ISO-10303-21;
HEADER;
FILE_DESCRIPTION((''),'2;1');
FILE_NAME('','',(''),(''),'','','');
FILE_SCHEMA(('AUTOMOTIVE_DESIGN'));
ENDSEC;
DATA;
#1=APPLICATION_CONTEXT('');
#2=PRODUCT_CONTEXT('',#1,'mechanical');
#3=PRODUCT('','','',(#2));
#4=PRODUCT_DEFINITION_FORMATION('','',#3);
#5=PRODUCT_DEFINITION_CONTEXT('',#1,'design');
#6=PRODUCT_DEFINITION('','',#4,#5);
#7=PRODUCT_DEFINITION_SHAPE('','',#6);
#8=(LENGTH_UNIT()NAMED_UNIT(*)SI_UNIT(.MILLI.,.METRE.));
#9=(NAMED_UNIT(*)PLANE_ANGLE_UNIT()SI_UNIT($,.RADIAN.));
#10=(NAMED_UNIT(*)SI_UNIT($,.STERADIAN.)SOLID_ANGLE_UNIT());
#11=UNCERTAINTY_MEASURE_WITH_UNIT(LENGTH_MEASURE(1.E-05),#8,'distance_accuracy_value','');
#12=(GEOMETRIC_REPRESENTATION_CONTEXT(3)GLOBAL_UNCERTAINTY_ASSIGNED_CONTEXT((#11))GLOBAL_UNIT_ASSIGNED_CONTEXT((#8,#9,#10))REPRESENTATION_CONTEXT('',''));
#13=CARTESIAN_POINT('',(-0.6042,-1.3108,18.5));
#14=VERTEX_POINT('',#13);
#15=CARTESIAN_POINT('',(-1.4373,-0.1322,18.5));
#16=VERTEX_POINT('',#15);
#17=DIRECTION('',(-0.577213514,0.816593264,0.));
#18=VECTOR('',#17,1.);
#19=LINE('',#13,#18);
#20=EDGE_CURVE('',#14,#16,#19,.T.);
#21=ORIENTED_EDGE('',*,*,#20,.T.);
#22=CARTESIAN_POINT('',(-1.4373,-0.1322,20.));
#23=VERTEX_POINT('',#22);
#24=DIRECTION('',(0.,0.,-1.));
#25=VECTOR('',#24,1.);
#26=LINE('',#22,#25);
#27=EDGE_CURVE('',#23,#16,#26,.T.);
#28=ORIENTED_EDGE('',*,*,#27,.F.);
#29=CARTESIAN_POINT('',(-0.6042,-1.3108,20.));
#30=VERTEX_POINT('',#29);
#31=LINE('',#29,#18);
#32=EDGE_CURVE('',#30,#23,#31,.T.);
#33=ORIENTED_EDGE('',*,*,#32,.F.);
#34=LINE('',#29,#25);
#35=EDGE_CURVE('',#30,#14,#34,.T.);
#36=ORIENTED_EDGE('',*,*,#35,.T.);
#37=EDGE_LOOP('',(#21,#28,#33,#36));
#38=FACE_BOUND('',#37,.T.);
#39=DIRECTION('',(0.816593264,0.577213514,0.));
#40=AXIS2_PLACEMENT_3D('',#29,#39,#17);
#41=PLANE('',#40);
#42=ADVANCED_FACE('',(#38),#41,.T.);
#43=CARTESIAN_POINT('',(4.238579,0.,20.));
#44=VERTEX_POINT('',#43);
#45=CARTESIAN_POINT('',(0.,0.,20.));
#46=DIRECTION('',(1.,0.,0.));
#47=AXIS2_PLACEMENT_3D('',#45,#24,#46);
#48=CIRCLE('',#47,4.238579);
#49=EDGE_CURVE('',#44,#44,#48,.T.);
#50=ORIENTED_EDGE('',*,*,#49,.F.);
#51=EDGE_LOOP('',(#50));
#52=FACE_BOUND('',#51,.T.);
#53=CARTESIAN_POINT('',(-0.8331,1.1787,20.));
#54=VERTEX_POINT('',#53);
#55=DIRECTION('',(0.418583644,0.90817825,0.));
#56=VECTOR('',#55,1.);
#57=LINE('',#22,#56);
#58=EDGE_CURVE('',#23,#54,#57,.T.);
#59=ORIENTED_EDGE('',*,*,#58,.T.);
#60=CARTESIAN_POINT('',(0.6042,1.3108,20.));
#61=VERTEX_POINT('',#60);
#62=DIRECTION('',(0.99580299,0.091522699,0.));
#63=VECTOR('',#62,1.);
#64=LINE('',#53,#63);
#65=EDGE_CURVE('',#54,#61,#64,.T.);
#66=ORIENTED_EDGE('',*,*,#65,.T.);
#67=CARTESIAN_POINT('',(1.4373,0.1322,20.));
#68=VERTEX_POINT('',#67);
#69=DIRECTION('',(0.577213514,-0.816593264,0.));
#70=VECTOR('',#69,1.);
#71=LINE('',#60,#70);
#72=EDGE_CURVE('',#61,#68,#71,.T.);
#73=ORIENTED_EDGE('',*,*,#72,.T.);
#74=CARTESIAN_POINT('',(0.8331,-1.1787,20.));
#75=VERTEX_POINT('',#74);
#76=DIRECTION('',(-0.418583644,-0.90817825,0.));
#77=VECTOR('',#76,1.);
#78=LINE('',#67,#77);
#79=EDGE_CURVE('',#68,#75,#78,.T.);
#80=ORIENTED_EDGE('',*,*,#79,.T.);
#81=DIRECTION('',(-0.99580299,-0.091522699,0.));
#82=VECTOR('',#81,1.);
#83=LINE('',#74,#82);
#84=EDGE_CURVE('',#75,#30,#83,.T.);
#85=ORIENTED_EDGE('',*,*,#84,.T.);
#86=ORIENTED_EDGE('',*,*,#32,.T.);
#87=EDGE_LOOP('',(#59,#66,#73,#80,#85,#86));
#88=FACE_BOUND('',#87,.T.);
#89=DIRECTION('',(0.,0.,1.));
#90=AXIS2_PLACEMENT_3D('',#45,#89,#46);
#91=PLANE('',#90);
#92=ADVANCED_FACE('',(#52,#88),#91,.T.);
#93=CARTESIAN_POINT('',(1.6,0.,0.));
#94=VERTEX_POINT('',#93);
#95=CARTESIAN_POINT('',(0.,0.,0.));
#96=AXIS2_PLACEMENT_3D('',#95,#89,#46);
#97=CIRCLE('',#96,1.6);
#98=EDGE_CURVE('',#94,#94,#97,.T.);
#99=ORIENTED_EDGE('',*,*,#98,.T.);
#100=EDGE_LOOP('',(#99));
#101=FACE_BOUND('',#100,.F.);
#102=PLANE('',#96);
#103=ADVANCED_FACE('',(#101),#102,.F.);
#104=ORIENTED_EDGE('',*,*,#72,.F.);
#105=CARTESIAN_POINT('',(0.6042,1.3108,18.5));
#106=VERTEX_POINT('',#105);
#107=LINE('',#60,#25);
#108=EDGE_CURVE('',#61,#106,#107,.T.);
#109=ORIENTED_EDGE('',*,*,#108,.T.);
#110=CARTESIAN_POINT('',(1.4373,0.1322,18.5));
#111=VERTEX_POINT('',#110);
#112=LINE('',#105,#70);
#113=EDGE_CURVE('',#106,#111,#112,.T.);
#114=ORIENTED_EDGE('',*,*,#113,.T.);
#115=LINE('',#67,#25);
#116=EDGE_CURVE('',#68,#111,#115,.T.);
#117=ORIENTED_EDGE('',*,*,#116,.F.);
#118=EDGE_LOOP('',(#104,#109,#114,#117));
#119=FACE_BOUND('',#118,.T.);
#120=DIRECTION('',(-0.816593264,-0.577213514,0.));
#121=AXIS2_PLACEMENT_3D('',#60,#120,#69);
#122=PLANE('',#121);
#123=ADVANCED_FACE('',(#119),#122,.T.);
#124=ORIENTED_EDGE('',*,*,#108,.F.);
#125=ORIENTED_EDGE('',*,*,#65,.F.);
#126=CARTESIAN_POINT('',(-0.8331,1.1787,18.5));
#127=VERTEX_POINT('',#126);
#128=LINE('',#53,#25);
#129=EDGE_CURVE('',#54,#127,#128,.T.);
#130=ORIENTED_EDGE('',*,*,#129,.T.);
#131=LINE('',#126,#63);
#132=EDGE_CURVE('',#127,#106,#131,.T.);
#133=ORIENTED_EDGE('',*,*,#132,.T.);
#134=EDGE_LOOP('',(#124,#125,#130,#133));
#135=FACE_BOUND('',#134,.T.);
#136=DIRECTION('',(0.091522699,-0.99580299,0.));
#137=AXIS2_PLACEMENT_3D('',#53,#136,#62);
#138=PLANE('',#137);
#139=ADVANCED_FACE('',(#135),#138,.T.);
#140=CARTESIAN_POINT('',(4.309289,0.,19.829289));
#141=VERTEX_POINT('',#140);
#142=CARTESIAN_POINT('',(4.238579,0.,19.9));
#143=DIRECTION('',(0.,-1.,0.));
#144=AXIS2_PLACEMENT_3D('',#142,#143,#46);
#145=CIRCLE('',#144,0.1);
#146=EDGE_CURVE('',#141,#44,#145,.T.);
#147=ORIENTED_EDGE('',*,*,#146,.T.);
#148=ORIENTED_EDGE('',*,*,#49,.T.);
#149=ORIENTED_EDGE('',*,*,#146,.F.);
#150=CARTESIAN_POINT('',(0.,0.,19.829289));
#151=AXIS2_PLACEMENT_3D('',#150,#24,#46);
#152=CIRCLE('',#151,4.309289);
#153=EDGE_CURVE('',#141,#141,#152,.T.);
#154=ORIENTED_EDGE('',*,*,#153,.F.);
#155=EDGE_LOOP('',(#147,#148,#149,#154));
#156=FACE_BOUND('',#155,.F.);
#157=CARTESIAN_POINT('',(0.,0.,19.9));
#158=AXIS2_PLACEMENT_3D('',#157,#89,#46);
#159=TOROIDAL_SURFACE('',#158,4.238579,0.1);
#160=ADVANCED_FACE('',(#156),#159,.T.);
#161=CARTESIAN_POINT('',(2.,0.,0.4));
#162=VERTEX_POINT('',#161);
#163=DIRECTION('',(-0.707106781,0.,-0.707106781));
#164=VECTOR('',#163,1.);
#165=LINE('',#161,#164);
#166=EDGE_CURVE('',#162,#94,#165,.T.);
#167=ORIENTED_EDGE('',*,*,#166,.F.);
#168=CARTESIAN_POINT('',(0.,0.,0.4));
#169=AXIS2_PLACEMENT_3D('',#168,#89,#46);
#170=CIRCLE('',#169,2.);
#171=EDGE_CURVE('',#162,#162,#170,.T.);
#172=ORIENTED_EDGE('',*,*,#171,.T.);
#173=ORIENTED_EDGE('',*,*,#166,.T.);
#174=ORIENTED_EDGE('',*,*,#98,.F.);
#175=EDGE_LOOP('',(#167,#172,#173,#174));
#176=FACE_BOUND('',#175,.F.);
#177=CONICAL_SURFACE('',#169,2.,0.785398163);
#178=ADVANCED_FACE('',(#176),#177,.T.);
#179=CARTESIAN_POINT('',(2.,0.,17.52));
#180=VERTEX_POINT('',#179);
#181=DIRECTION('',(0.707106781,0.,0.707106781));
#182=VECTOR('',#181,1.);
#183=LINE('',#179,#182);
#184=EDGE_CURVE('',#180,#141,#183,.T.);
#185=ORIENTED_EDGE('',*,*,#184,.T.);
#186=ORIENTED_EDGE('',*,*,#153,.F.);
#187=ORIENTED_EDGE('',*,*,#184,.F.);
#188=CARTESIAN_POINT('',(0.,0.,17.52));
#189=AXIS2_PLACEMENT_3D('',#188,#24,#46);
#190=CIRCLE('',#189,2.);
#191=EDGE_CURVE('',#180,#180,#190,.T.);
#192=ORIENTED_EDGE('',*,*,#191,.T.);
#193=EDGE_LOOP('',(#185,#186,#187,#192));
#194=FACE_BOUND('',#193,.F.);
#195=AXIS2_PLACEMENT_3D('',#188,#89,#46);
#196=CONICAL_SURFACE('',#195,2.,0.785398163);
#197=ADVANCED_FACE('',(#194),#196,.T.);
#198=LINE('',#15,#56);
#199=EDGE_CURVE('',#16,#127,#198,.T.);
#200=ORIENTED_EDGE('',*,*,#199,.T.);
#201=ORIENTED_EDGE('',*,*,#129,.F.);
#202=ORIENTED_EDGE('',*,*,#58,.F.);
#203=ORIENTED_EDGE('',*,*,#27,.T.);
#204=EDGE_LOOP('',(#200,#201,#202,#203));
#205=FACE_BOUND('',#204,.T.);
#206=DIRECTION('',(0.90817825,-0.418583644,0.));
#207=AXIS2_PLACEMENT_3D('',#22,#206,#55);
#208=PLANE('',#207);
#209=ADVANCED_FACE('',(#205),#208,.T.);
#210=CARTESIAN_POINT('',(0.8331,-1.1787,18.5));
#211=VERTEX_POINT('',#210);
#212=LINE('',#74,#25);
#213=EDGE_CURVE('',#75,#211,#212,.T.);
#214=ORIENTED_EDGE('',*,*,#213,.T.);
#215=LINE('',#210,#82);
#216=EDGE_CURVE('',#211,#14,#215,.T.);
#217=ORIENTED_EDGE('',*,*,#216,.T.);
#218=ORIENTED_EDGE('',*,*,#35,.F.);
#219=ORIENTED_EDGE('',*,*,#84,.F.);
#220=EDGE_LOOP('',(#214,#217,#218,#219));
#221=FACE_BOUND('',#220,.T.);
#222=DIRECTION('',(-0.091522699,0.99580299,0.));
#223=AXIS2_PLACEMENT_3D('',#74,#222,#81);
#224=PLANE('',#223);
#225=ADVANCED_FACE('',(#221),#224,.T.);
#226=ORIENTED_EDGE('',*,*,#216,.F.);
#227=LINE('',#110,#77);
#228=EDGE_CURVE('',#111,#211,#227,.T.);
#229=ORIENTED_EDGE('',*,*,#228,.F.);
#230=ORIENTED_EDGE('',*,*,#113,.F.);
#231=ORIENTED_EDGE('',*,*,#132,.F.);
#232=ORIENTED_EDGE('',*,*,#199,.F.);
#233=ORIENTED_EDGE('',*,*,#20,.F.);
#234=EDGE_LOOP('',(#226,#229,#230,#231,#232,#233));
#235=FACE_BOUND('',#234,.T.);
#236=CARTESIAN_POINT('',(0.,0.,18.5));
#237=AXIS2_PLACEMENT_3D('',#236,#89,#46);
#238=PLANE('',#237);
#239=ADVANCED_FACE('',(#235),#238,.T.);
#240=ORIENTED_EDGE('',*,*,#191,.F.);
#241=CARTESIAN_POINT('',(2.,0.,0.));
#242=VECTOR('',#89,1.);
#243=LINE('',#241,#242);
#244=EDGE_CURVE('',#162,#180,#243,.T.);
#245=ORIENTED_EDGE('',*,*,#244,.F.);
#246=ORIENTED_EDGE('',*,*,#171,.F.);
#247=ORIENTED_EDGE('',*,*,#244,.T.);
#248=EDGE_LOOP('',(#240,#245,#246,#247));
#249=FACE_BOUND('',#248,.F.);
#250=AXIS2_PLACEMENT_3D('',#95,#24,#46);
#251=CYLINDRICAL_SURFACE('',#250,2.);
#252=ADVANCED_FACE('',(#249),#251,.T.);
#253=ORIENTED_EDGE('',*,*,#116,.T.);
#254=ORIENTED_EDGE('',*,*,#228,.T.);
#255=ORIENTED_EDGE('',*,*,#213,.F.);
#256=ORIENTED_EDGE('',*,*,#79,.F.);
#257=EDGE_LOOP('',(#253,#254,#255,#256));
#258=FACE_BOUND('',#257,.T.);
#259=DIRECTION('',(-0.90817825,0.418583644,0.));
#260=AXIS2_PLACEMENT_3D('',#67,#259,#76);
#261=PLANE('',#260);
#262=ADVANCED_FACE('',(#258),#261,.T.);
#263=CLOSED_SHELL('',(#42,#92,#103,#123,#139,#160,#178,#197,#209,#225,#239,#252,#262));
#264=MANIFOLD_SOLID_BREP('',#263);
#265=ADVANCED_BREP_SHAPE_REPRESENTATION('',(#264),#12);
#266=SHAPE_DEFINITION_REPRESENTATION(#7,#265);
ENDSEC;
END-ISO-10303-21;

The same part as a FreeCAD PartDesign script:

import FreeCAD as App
import Part
import Sketcher


def edges_at(feature, points):
    """Names of the edges that pass closest to the given points."""
    edges = feature.Shape.Edges
    near = lambda p: min(range(len(edges)), key=lambda i: edges[i].distToShape(Part.Vertex(*p))[0])
    return sorted({f"Edge{near(p) + 1}" for p in points})


def add_polygon(sketch, points):
    """Adds a closed chain of lines whose ends are joined by coincident constraints."""
    first, n = sketch.GeometryCount, len(points)
    for a, b in zip(points, points[1:] + points[:1]):
        sketch.addGeometry(Part.LineSegment(App.Vector(*a, 0), App.Vector(*b, 0)), False)
    for i in range(n):
        sketch.addConstraint(Sketcher.Constraint("Coincident", first + i, 2, first + (i + 1) % n, 1))

doc = App.newDocument("Part")
body = doc.addObject("PartDesign::Body", "Body")

sketch1 = body.newObject("Sketcher::SketchObject", "Sketch")
sketch1.AttachmentSupport = (doc.getObject("XY_Plane"), [""])
sketch1.MapMode = "FlatFace"
sketch1.addGeometry(Part.Circle(App.Vector(0, 0, 0), App.Vector(0, 0, 1), 2), False)
sketch1.addConstraint([
    Sketcher.Constraint("Coincident", 0, 3, -1, 1),
    Sketcher.Constraint("Diameter", 0, 4.0),
])
pad1 = body.newObject("PartDesign::Pad", "Pad")
pad1.Profile = sketch1
pad1.Length = 17.52

sketch2 = body.newObject("Sketcher::SketchObject", "Sketch001")
sketch2.AttachmentSupport = (doc.getObject("XY_Plane"), [""])
sketch2.MapMode = "FlatFace"
sketch2.AttachmentOffset = App.Placement(App.Vector(0, 0, 17.52), App.Rotation())
sketch2.addGeometry(Part.Circle(App.Vector(0, 0, 0), App.Vector(0, 0, 1), 2), False)
sketch2.addConstraint([
    Sketcher.Constraint("Coincident", 0, 3, -1, 1),
    Sketcher.Constraint("Diameter", 0, 4.0),
])
pad2 = body.newObject("PartDesign::Pad", "Pad001")
pad2.Profile = sketch2
pad2.Length = 2.48
pad2.TaperAngle = 45

sketch3 = body.newObject("Sketcher::SketchObject", "Sketch002")
sketch3.AttachmentSupport = (doc.getObject("XY_Plane"), [""])
sketch3.MapMode = "FlatFace"
sketch3.AttachmentOffset = App.Placement(App.Vector(0, 0, 20), App.Rotation())
add_polygon(sketch3, [(1.4373, 0.1322), (0.6042, 1.3108), (-0.8331, 1.1787), (-1.4373, -0.1322), (-0.6042, -1.3108), (0.8331, -1.1787)])
sketch3.addConstraint([
    Sketcher.Constraint("Symmetric", 0, 2, 3, 2, -1, 1),
    Sketcher.Constraint("Symmetric", 1, 2, 4, 2, -1, 1),
    Sketcher.Constraint("Symmetric", 2, 2, 5, 2, -1, 1),
    Sketcher.Constraint("Equal", 0, 1),
    Sketcher.Constraint("Equal", 1, 2),
    Sketcher.Constraint("DistanceX", 1, 2, -1, 1, 0.833),
    Sketcher.Constraint("DistanceY", 1, 2, 0, 2, 0.132),
    Sketcher.Constraint("DistanceY", 2, 2, 1, 2, 1.311),
    Sketcher.Constraint("DistanceX", 2, 2, 3, 2, 0.833),
])
pocket1 = body.newObject("PartDesign::Pocket", "Pocket")
pocket1.Profile = sketch3
pocket1.Length = 1.5
doc.recompute()

chamfer = body.newObject("PartDesign::Chamfer", "Chamfer")
chamfer.Base = (pocket1, edges_at(pocket1, [(-2, 0, 0)]))
chamfer.Size = 0.4
doc.recompute()

fillet = body.newObject("PartDesign::Fillet", "Fillet")
fillet.Base = (chamfer, edges_at(chamfer, [(-4.48, 0, 20)]))
fillet.Radius = 0.1

doc.recompute()
